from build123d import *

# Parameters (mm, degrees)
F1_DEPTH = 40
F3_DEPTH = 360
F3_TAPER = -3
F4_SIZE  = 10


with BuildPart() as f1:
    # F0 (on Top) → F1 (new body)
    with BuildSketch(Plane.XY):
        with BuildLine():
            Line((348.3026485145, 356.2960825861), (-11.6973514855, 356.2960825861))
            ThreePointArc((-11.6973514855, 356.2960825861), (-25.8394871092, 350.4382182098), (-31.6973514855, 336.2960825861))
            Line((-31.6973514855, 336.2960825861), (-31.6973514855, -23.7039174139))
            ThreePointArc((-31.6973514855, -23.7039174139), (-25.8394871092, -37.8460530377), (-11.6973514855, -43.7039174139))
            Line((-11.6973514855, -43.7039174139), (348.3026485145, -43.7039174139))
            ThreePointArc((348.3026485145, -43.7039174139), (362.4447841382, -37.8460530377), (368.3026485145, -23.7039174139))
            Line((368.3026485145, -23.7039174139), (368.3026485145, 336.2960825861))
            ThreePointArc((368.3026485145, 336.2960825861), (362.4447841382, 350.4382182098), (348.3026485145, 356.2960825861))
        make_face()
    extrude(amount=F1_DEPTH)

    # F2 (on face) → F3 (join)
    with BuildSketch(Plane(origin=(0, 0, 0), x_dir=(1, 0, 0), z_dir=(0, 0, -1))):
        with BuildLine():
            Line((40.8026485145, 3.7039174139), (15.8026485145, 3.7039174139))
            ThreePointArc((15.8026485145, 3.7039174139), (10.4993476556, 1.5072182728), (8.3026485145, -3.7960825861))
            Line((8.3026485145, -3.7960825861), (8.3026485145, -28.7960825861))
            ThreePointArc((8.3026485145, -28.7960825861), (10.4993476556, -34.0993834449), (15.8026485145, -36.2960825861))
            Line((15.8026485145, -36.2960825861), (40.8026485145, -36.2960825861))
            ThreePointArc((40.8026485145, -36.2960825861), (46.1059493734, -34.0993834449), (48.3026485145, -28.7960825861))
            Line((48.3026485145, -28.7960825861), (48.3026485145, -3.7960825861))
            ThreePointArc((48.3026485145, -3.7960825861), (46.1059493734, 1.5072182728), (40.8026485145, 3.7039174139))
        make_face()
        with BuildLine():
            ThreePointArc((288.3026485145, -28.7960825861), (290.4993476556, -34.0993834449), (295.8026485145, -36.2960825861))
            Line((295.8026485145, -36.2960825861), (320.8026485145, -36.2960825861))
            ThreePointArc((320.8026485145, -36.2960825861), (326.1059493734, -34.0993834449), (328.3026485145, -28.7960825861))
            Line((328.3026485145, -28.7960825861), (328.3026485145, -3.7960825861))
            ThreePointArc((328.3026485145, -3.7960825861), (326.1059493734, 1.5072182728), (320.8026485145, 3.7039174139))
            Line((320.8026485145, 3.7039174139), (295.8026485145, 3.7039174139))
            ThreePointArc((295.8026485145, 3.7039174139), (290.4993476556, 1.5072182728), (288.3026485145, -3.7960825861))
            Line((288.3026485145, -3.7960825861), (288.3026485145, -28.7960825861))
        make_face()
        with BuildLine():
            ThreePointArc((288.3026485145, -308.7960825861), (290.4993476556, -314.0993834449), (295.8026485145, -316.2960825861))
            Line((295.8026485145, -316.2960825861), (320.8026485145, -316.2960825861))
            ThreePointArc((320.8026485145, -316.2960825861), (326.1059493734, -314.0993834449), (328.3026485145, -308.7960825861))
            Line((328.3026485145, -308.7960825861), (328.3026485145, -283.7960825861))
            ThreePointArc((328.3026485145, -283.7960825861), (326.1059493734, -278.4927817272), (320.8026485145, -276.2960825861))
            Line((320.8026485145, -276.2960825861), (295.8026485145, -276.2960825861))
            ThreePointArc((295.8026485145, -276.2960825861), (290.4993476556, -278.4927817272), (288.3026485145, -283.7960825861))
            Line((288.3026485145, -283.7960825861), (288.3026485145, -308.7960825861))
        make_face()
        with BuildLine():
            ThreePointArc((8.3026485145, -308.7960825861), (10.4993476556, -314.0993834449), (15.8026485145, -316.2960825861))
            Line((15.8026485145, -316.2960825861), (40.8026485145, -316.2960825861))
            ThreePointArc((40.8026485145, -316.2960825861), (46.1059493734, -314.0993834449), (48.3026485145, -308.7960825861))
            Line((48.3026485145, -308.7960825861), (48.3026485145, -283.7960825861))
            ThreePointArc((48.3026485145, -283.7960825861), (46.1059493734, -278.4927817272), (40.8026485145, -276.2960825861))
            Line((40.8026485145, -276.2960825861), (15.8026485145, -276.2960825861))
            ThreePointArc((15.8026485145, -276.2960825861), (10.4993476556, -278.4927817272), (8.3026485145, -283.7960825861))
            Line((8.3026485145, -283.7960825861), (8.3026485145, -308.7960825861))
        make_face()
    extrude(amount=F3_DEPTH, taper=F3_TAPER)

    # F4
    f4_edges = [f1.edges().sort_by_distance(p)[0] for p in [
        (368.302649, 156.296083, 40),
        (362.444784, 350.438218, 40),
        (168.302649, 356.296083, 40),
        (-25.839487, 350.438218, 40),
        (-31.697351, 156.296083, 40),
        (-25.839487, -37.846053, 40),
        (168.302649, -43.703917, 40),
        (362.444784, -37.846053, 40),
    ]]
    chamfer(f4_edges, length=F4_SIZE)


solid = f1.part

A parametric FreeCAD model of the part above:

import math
import FreeCAD as App
import Part
import Sketcher
from FreeCAD import Vector


def edges_at(feature, points):
    """Names of the edges that pass closest to the given points."""
    edges = feature.Shape.Edges
    near = lambda p: min(range(len(edges)), key=lambda i: edges[i].distToShape(Part.Vertex(*p))[0])
    return sorted({f"Edge{near(p) + 1}" for p in points})

doc = App.newDocument("Part")
body = doc.addObject("PartDesign::Body", "Body")

# Sketch on XY plane
sketch1 = body.newObject("Sketcher::SketchObject", "Sketch")
sketch1.AttachmentSupport = (doc.getObject("XY_Plane"), [""])
sketch1.MapMode = "FlatFace"
sketch1.addGeometry(Part.LineSegment(Vector(348, 356, 0), Vector(-12, 356, 0)), False)
sketch1.addGeometry(Part.ArcOfCircle(Part.Circle(Vector(-12, 336, 0), Vector(0, 0, 1), 20), math.radians(90), math.radians(180)), False)
sketch1.addGeometry(Part.LineSegment(Vector(-32, 336, 0), Vector(-32, -24, 0)), False)
sketch1.addGeometry(Part.ArcOfCircle(Part.Circle(Vector(-12, -24, 0), Vector(0, 0, 1), 20), math.radians(180), math.radians(270)), False)
sketch1.addGeometry(Part.LineSegment(Vector(-12, -44, 0), Vector(348, -44, 0)), False)
sketch1.addGeometry(Part.ArcOfCircle(Part.Circle(Vector(348, -24, 0), Vector(0, 0, 1), 20), math.radians(-90), math.radians(0)), False)
sketch1.addGeometry(Part.LineSegment(Vector(368, -24, 0), Vector(368, 336, 0)), False)
sketch1.addGeometry(Part.ArcOfCircle(Part.Circle(Vector(348, 336, 0), Vector(0, 0, 1), 20), math.radians(0), math.radians(90)), False)
sketch1.addConstraint(Sketcher.Constraint("Tangent", 0, 2, 1, 1))
sketch1.addConstraint(Sketcher.Constraint("Tangent", 1, 2, 2, 1))
sketch1.addConstraint(Sketcher.Constraint("Tangent", 2, 2, 3, 1))
sketch1.addConstraint(Sketcher.Constraint("Tangent", 3, 2, 4, 1))
sketch1.addConstraint(Sketcher.Constraint("Tangent", 4, 2, 5, 1))
sketch1.addConstraint(Sketcher.Constraint("Tangent", 5, 2, 6, 1))
sketch1.addConstraint(Sketcher.Constraint("Tangent", 6, 2, 7, 1))
sketch1.addConstraint(Sketcher.Constraint("Tangent", 7, 2, 0, 1))
sketch1.addConstraint(Sketcher.Constraint("Horizontal", 0))
sketch1.addConstraint(Sketcher.Constraint("Vertical", 2))
sketch1.addConstraint(Sketcher.Constraint("Horizontal", 4))
sketch1.addConstraint(Sketcher.Constraint("Vertical", 6))
sketch1.addConstraint(Sketcher.Constraint("Equal", 1, 3))
sketch1.addConstraint(Sketcher.Constraint("Equal", 3, 5))
sketch1.addConstraint(Sketcher.Constraint("Equal", 5, 7))
sketch1.addConstraint(Sketcher.Constraint("Equal", 4, 2))
sketch1.addConstraint(Sketcher.Constraint("Radius", 1, 20.0))
sketch1.addConstraint(Sketcher.Constraint("DistanceX", 0, 2, 0, 1, 360.0))
sketch1.addConstraint(Sketcher.Constraint("DistanceX", 1, 3, -1, 1, 11.697351))
sketch1.addConstraint(Sketcher.Constraint("DistanceY", -1, 1, 1, 3, 336.296083))
pad1 = body.newObject("PartDesign::Pad", "Pad")
pad1.Profile = sketch1
pad1.Length = 40

# Sketch on XY plane
sketch2 = body.newObject("Sketcher::SketchObject", "Sketch001")
sketch2.AttachmentSupport = (doc.getObject("XY_Plane"), [""])
sketch2.MapMode = "FlatFace"
sketch2.addGeometry(Part.LineSegment(Vector(41, -4, 0), Vector(16, -4, 0)), False)
sketch2.addGeometry(Part.ArcOfCircle(Part.Circle(Vector(16, 4, 0), Vector(0, 0, 1), 8), math.radians(180), math.radians(270)), False)
sketch2.addGeometry(Part.LineSegment(Vector(8, 4, 0), Vector(8, 29, 0)), False)
sketch2.addGeometry(Part.ArcOfCircle(Part.Circle(Vector(16, 29, 0), Vector(0, 0, 1), 8), math.radians(90), math.radians(180)), False)
sketch2.addGeometry(Part.LineSegment(Vector(16, 36, 0), Vector(41, 36, 0)), False)
sketch2.addGeometry(Part.ArcOfCircle(Part.Circle(Vector(41, 29, 0), Vector(0, 0, 1), 8), math.radians(0), math.radians(90)), False)
sketch2.addGeometry(Part.LineSegment(Vector(48, 29, 0), Vector(48, 4, 0)), False)
sketch2.addGeometry(Part.ArcOfCircle(Part.Circle(Vector(41, 4, 0), Vector(0, 0, 1), 8), math.radians(-90), math.radians(0)), False)
sketch2.addGeometry(Part.ArcOfCircle(Part.Circle(Vector(296, 29, 0), Vector(0, 0, 1), 8), math.radians(90), math.radians(180)), False)
sketch2.addGeometry(Part.LineSegment(Vector(296, 36, 0), Vector(321, 36, 0)), False)
sketch2.addGeometry(Part.ArcOfCircle(Part.Circle(Vector(321, 29, 0), Vector(0, 0, 1), 8), math.radians(0), math.radians(90)), False)
sketch2.addGeometry(Part.LineSegment(Vector(328, 29, 0), Vector(328, 4, 0)), False)
sketch2.addGeometry(Part.ArcOfCircle(Part.Circle(Vector(321, 4, 0), Vector(0, 0, 1), 8), math.radians(-90), math.radians(0)), False)
sketch2.addGeometry(Part.LineSegment(Vector(321, -4, 0), Vector(296, -4, 0)), False)
sketch2.addGeometry(Part.ArcOfCircle(Part.Circle(Vector(296, 4, 0), Vector(0, 0, 1), 8), math.radians(180), math.radians(270)), False)
sketch2.addGeometry(Part.LineSegment(Vector(288, 4, 0), Vector(288, 29, 0)), False)
sketch2.addGeometry(Part.ArcOfCircle(Part.Circle(Vector(296, 309, 0), Vector(0, 0, 1), 8), math.radians(90), math.radians(180)), False)
sketch2.addGeometry(Part.LineSegment(Vector(296, 316, 0), Vector(321, 316, 0)), False)
sketch2.addGeometry(Part.ArcOfCircle(Part.Circle(Vector(321, 309, 0), Vector(0, 0, 1), 8), math.radians(0), math.radians(90)), False)
sketch2.addGeometry(Part.LineSegment(Vector(328, 309, 0), Vector(328, 284, 0)), False)
sketch2.addGeometry(Part.ArcOfCircle(Part.Circle(Vector(321, 284, 0), Vector(0, 0, 1), 8), math.radians(-90), math.radians(0)), False)
sketch2.addGeometry(Part.LineSegment(Vector(321, 276, 0), Vector(296, 276, 0)), False)
sketch2.addGeometry(Part.ArcOfCircle(Part.Circle(Vector(296, 284, 0), Vector(0, 0, 1), 8), math.radians(180), math.radians(270)), False)
sketch2.addGeometry(Part.LineSegment(Vector(288, 284, 0), Vector(288, 309, 0)), False)
sketch2.addGeometry(Part.ArcOfCircle(Part.Circle(Vector(16, 309, 0), Vector(0, 0, 1), 8), math.radians(90), math.radians(180)), False)
sketch2.addGeometry(Part.LineSegment(Vector(16, 316, 0), Vector(41, 316, 0)), False)
sketch2.addGeometry(Part.ArcOfCircle(Part.Circle(Vector(41, 309, 0), Vector(0, 0, 1), 8), math.radians(0), math.radians(90)), False)
sketch2.addGeometry(Part.LineSegment(Vector(48, 309, 0), Vector(48, 284, 0)), False)
sketch2.addGeometry(Part.ArcOfCircle(Part.Circle(Vector(41, 284, 0), Vector(0, 0, 1), 8), math.radians(-90), math.radians(0)), False)
sketch2.addGeometry(Part.LineSegment(Vector(41, 276, 0), Vector(16, 276, 0)), False)
sketch2.addGeometry(Part.ArcOfCircle(Part.Circle(Vector(16, 284, 0), Vector(0, 0, 1), 8), math.radians(180), math.radians(270)), False)
sketch2.addGeometry(Part.LineSegment(Vector(8, 284, 0), Vector(8, 309, 0)), False)
sketch2.addConstraint(Sketcher.Constraint("Tangent", 0, 2, 1, 2))
sketch2.addConstraint(Sketcher.Constraint("Tangent", 1, 1, 2, 1))
sketch2.addConstraint(Sketcher.Constraint("Tangent", 2, 2, 3, 2))
sketch2.addConstraint(Sketcher.Constraint("Tangent", 3, 1, 4, 1))
sketch2.addConstraint(Sketcher.Constraint("Tangent", 4, 2, 5, 2))
sketch2.addConstraint(Sketcher.Constraint("Tangent", 5, 1, 6, 1))
sketch2.addConstraint(Sketcher.Constraint("Tangent", 6, 2, 7, 2))
sketch2.addConstraint(Sketcher.Constraint("Tangent", 7, 1, 0, 1))
sketch2.addConstraint(Sketcher.Constraint("Tangent", 8, 1, 9, 1))
sketch2.addConstraint(Sketcher.Constraint("Tangent", 9, 2, 10, 2))
sketch2.addConstraint(Sketcher.Constraint("Tangent", 10, 1, 11, 1))
sketch2.addConstraint(Sketcher.Constraint("Tangent", 11, 2, 12, 2))
sketch2.addConstraint(Sketcher.Constraint("Tangent", 12, 1, 13, 1))
sketch2.addConstraint(Sketcher.Constraint("Tangent", 13, 2, 14, 2))
sketch2.addConstraint(Sketcher.Constraint("Tangent", 14, 1, 15, 1))
sketch2.addConstraint(Sketcher.Constraint("Tangent", 15, 2, 8, 2))
sketch2.addConstraint(Sketcher.Constraint("Tangent", 16, 1, 17, 1))
sketch2.addConstraint(Sketcher.Constraint("Tangent", 17, 2, 18, 2))
sketch2.addConstraint(Sketcher.Constraint("Tangent", 18, 1, 19, 1))
sketch2.addConstraint(Sketcher.Constraint("Tangent", 19, 2, 20, 2))
sketch2.addConstraint(Sketcher.Constraint("Tangent", 20, 1, 21, 1))
sketch2.addConstraint(Sketcher.Constraint("Tangent", 21, 2, 22, 2))
sketch2.addConstraint(Sketcher.Constraint("Tangent", 22, 1, 23, 1))
sketch2.addConstraint(Sketcher.Constraint("Tangent", 23, 2, 16, 2))
sketch2.addConstraint(Sketcher.Constraint("Tangent", 24, 1, 25, 1))
sketch2.addConstraint(Sketcher.Constraint("Tangent", 25, 2, 26, 2))
sketch2.addConstraint(Sketcher.Constraint("Tangent", 26, 1, 27, 1))
sketch2.addConstraint(Sketcher.Constraint("Tangent", 27, 2, 28, 2))
sketch2.addConstraint(Sketcher.Constraint("Tangent", 28, 1, 29, 1))
sketch2.addConstraint(Sketcher.Constraint("Tangent", 29, 2, 30, 2))
sketch2.addConstraint(Sketcher.Constraint("Tangent", 30, 1, 31, 1))
sketch2.addConstraint(Sketcher.Constraint("Tangent", 31, 2, 24, 2))
sketch2.addConstraint(Sketcher.Constraint("Horizontal", 0))
sketch2.addConstraint(Sketcher.Constraint("Vertical", 2))
sketch2.addConstraint(Sketcher.Constraint("Horizontal", 4))
sketch2.addConstraint(Sketcher.Constraint("Vertical", 6))
sketch2.addConstraint(Sketcher.Constraint("Horizontal", 9))
sketch2.addConstraint(Sketcher.Constraint("Vertical", 11))
sketch2.addConstraint(Sketcher.Constraint("Horizontal", 13))
sketch2.addConstraint(Sketcher.Constraint("Vertical", 15))
sketch2.addConstraint(Sketcher.Constraint("Horizontal", 17))
sketch2.addConstraint(Sketcher.Constraint("Vertical", 19))
sketch2.addConstraint(Sketcher.Constraint("Horizontal", 21))
sketch2.addConstraint(Sketcher.Constraint("Vertical", 23))
sketch2.addConstraint(Sketcher.Constraint("Horizontal", 25))
sketch2.addConstraint(Sketcher.Constraint("Vertical", 27))
sketch2.addConstraint(Sketcher.Constraint("Horizontal", 29))
sketch2.addConstraint(Sketcher.Constraint("Vertical", 31))
sketch2.addConstraint(Sketcher.Constraint("Equal", 1, 3))
sketch2.addConstraint(Sketcher.Constraint("Equal", 3, 5))
sketch2.addConstraint(Sketcher.Constraint("Equal", 5, 7))
sketch2.addConstraint(Sketcher.Constraint("Equal", 7, 8))
sketch2.addConstraint(Sketcher.Constraint("Equal", 8, 10))
sketch2.addConstraint(Sketcher.Constraint("Equal", 10, 12))
sketch2.addConstraint(Sketcher.Constraint("Equal", 12, 14))
sketch2.addConstraint(Sketcher.Constraint("Equal", 14, 16))
sketch2.addConstraint(Sketcher.Constraint("Equal", 16, 18))
sketch2.addConstraint(Sketcher.Constraint("Equal", 18, 20))
sketch2.addConstraint(Sketcher.Constraint("Equal", 20, 22))
sketch2.addConstraint(Sketcher.Constraint("Equal", 22, 24))
sketch2.addConstraint(Sketcher.Constraint("Equal", 24, 26))
sketch2.addConstraint(Sketcher.Constraint("Equal", 26, 28))
sketch2.addConstraint(Sketcher.Constraint("Equal", 28, 30))
sketch2.addConstraint(Sketcher.Constraint("Horizontal", 5, 3, 8, 3))
sketch2.addConstraint(Sketcher.Constraint("Horizontal", 7, 3, 12, 3))
sketch2.addConstraint(Sketcher.Constraint("Horizontal", 18, 3, 24, 3))
sketch2.addConstraint(Sketcher.Constraint("Horizontal", 22, 3, 28, 3))
sketch2.addConstraint(Sketcher.Constraint("Vertical", 14, 3, 16, 3))
sketch2.addConstraint(Sketcher.Constraint("Vertical", 12, 3, 18, 3))
sketch2.addConstraint(Sketcher.Constraint("Vertical", 3, 3, 24, 3))
sketch2.addConstraint(Sketcher.Constraint("Vertical", 7, 3, 26, 3))
sketch2.addConstraint(Sketcher.Constraint("Equal", 4, 9))
sketch2.addConstraint(Sketcher.Constraint("Equal", 29, 2))
sketch2.addConstraint(Sketcher.Constraint("Equal", 15, 19))
sketch2.addConstraint(Sketcher.Constraint("Radius", 1, 7.5))
sketch2.addConstraint(Sketcher.Constraint("DistanceX", 0, 2, 0, 1, 25.0))
sketch2.addConstraint(Sketcher.Constraint("DistanceX", 5, 3, 8, 3, 255.0))
sketch2.addConstraint(Sketcher.Constraint("DistanceY", 8, 3, 16, 3, 280.0))
sketch2.addConstraint(Sketcher.Constraint("DistanceX", -1, 1, 1, 3, 15.802649))
sketch2.addConstraint(Sketcher.Constraint("DistanceY", -1, 1, 1, 3, 3.796083))
pad2 = body.newObject("PartDesign::Pad", "Pad001")
pad2.Profile = sketch2
pad2.Length = 360
pad2.Reversed = True
pad2.TaperAngle = 3
doc.recompute()

chamfer = body.newObject("PartDesign::Chamfer", "Chamfer")
chamfer.Base = (pad2, edges_at(pad2, [
    (368.303, 156.296, 40),
    (362.445, 350.438, 40),
    (168.303, 356.296, 40),
    (-25.839, 350.438, 40),
    (-31.697, 156.296, 40),
    (-25.839, -37.846, 40),
    (168.303, -43.704, 40),
    (362.445, -37.846, 40),
]))
chamfer.Size = 10

doc.recompute()
